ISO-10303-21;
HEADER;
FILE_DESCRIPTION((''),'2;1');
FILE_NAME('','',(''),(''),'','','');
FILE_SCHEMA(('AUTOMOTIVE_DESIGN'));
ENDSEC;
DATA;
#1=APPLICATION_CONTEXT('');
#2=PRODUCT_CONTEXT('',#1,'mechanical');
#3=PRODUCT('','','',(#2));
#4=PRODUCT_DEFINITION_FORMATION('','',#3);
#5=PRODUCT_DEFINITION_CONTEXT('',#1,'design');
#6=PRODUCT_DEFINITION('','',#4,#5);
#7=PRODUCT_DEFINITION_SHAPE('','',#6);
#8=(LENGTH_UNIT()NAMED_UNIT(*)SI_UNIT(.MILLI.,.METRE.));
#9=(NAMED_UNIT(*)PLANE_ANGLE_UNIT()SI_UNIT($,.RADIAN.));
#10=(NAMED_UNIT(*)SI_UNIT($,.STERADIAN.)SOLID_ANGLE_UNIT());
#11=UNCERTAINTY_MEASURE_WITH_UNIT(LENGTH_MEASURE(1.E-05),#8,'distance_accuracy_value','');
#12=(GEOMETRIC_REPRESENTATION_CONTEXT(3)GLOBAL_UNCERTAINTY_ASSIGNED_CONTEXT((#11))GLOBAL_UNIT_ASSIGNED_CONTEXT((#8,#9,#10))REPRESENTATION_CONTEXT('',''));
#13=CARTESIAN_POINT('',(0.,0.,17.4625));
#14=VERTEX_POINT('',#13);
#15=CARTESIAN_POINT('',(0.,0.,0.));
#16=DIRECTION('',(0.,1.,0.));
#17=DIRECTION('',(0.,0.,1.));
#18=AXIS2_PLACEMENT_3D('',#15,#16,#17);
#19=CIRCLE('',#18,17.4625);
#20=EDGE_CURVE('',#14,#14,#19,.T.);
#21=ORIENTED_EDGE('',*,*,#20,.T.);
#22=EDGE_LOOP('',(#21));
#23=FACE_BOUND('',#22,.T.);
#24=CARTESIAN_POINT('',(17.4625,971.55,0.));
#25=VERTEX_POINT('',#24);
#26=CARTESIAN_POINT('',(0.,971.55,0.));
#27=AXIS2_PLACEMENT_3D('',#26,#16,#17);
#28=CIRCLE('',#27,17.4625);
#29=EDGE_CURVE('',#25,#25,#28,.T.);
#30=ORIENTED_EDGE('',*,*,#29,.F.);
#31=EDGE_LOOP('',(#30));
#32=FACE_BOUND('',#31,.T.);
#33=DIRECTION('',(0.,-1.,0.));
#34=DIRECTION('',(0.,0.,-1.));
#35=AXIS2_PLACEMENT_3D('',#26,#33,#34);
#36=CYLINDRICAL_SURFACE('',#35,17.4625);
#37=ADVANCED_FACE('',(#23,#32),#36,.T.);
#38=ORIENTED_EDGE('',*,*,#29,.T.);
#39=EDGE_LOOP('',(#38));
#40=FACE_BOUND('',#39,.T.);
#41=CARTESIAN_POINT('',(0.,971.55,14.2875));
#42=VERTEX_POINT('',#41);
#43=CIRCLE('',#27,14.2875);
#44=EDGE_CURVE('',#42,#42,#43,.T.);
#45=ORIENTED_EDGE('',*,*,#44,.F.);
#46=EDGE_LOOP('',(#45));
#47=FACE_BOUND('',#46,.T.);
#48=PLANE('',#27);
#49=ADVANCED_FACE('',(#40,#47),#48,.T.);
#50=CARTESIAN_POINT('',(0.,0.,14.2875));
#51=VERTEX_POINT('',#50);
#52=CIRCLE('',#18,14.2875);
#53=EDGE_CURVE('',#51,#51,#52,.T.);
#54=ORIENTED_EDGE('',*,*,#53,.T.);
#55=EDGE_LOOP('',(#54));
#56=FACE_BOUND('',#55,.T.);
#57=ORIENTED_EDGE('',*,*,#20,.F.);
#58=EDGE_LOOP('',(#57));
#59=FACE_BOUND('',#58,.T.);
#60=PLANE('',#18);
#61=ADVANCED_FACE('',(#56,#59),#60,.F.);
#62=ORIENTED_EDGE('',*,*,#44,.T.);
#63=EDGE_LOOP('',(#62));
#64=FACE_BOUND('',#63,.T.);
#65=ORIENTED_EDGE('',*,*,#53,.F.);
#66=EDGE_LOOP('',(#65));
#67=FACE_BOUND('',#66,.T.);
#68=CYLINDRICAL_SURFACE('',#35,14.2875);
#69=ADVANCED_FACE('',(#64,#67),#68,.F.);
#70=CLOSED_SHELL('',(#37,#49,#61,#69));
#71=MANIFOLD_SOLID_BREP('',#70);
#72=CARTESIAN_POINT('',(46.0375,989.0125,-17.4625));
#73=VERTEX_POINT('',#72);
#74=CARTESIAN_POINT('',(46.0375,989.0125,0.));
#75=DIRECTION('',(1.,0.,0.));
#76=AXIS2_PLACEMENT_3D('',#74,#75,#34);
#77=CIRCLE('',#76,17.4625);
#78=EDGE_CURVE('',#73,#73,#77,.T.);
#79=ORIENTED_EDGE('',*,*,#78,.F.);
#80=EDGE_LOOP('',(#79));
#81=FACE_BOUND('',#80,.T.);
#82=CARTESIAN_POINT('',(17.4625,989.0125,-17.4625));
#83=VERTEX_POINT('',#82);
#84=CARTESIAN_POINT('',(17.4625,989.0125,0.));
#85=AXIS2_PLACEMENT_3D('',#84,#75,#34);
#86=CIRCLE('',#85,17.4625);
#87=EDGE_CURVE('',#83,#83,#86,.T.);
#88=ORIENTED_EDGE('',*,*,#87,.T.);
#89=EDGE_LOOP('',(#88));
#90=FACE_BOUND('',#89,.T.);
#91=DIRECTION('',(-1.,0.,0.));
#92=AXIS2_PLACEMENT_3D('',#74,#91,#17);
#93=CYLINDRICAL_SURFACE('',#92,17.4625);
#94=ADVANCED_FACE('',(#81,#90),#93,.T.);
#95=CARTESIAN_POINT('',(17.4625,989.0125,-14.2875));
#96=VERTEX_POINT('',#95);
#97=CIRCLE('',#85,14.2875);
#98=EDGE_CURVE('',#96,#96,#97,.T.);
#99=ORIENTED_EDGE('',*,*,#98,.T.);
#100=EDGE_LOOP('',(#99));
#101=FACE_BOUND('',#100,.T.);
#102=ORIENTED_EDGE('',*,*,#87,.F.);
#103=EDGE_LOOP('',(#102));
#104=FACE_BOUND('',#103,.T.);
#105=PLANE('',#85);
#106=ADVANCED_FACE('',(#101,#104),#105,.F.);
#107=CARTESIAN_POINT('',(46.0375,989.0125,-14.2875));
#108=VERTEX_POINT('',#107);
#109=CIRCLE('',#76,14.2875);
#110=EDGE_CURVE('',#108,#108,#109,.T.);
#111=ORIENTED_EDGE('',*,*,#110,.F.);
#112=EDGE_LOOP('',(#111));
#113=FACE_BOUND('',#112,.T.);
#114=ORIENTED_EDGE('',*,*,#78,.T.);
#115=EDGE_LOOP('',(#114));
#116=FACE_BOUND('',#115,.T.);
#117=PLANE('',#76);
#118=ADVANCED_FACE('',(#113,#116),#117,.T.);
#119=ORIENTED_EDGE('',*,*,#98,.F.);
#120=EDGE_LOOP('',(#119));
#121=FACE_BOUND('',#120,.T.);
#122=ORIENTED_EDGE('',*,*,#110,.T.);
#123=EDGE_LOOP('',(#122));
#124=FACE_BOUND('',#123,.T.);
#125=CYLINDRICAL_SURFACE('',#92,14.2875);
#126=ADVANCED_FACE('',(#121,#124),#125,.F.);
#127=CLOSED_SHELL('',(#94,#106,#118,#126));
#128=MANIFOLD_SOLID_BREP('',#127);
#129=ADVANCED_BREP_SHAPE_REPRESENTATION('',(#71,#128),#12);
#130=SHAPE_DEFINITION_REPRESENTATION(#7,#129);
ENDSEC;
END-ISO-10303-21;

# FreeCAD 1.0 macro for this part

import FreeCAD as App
import Part
import Sketcher
from FreeCAD import Vector
Q = App.Units.Quantity

doc = App.newDocument("Part")
body = doc.addObject("PartDesign::Body", "Body")

# Sketch on XZ plane
sketch1 = body.newObject("Sketcher::SketchObject", "Sketch")
sketch1.AttachmentSupport = (doc.getObject("XZ_Plane"), [""])
sketch1.MapMode = "FlatFace"
sketch1.addGeometry([
    Part.Circle(Vector(0, 0, 0), Vector(0, 0, 1), 17),
    Part.Circle(Vector(0, 0, 0), Vector(0, 0, 1), 14),
], False)
sketch1.addConstraint([
    Sketcher.Constraint("Coincident", 0, 3, -1, 1),
    Sketcher.Constraint("Coincident", 1, 3, -1, 1),
    Sketcher.Constraint("Diameter", 0, Q("1.375 in")),
    Sketcher.Constraint("Diameter", 1, Q("1.125 in")),
])
pad1 = body.newObject("PartDesign::Pad", "Pad")
pad1.Profile = sketch1
pad1.Length = Q("38.25 in")
pad1.Reversed = True
body2 = doc.addObject("PartDesign::Body", "Body001")

# Sketch on YZ plane
sketch2 = body2.newObject("Sketcher::SketchObject", "Sketch001")
sketch2.AttachmentSupport = (doc.getObject("YZ_Plane001"), [""])
sketch2.MapMode = "FlatFace"
sketch2.AttachmentOffset = App.Placement(Vector(0, 0, 0.6875 * 25.4), App.Rotation())
sketch2.addGeometry([
    Part.Circle(Vector(989, 0, 0), Vector(0, 0, 1), 17),
    Part.Circle(Vector(989, 0, 0), Vector(0, 0, 1), 14),
], False)
sketch2.addConstraint([
    Sketcher.Constraint("Coincident", 1, 3, 0, 3),
    Sketcher.Constraint("PointOnObject", 0, 3, -1),
    Sketcher.Constraint("Diameter", 0, Q("1.375 in")),
    Sketcher.Constraint("Diameter", 1, Q("1.125 in")),
    Sketcher.Constraint("DistanceX", -1, 1, 0, 3, Q("38.9375 in")),
])
pad2 = body2.newObject("PartDesign::Pad", "Pad001")
pad2.Profile = sketch2
pad2.Length = Q("1.125 in")

doc.recompute()
